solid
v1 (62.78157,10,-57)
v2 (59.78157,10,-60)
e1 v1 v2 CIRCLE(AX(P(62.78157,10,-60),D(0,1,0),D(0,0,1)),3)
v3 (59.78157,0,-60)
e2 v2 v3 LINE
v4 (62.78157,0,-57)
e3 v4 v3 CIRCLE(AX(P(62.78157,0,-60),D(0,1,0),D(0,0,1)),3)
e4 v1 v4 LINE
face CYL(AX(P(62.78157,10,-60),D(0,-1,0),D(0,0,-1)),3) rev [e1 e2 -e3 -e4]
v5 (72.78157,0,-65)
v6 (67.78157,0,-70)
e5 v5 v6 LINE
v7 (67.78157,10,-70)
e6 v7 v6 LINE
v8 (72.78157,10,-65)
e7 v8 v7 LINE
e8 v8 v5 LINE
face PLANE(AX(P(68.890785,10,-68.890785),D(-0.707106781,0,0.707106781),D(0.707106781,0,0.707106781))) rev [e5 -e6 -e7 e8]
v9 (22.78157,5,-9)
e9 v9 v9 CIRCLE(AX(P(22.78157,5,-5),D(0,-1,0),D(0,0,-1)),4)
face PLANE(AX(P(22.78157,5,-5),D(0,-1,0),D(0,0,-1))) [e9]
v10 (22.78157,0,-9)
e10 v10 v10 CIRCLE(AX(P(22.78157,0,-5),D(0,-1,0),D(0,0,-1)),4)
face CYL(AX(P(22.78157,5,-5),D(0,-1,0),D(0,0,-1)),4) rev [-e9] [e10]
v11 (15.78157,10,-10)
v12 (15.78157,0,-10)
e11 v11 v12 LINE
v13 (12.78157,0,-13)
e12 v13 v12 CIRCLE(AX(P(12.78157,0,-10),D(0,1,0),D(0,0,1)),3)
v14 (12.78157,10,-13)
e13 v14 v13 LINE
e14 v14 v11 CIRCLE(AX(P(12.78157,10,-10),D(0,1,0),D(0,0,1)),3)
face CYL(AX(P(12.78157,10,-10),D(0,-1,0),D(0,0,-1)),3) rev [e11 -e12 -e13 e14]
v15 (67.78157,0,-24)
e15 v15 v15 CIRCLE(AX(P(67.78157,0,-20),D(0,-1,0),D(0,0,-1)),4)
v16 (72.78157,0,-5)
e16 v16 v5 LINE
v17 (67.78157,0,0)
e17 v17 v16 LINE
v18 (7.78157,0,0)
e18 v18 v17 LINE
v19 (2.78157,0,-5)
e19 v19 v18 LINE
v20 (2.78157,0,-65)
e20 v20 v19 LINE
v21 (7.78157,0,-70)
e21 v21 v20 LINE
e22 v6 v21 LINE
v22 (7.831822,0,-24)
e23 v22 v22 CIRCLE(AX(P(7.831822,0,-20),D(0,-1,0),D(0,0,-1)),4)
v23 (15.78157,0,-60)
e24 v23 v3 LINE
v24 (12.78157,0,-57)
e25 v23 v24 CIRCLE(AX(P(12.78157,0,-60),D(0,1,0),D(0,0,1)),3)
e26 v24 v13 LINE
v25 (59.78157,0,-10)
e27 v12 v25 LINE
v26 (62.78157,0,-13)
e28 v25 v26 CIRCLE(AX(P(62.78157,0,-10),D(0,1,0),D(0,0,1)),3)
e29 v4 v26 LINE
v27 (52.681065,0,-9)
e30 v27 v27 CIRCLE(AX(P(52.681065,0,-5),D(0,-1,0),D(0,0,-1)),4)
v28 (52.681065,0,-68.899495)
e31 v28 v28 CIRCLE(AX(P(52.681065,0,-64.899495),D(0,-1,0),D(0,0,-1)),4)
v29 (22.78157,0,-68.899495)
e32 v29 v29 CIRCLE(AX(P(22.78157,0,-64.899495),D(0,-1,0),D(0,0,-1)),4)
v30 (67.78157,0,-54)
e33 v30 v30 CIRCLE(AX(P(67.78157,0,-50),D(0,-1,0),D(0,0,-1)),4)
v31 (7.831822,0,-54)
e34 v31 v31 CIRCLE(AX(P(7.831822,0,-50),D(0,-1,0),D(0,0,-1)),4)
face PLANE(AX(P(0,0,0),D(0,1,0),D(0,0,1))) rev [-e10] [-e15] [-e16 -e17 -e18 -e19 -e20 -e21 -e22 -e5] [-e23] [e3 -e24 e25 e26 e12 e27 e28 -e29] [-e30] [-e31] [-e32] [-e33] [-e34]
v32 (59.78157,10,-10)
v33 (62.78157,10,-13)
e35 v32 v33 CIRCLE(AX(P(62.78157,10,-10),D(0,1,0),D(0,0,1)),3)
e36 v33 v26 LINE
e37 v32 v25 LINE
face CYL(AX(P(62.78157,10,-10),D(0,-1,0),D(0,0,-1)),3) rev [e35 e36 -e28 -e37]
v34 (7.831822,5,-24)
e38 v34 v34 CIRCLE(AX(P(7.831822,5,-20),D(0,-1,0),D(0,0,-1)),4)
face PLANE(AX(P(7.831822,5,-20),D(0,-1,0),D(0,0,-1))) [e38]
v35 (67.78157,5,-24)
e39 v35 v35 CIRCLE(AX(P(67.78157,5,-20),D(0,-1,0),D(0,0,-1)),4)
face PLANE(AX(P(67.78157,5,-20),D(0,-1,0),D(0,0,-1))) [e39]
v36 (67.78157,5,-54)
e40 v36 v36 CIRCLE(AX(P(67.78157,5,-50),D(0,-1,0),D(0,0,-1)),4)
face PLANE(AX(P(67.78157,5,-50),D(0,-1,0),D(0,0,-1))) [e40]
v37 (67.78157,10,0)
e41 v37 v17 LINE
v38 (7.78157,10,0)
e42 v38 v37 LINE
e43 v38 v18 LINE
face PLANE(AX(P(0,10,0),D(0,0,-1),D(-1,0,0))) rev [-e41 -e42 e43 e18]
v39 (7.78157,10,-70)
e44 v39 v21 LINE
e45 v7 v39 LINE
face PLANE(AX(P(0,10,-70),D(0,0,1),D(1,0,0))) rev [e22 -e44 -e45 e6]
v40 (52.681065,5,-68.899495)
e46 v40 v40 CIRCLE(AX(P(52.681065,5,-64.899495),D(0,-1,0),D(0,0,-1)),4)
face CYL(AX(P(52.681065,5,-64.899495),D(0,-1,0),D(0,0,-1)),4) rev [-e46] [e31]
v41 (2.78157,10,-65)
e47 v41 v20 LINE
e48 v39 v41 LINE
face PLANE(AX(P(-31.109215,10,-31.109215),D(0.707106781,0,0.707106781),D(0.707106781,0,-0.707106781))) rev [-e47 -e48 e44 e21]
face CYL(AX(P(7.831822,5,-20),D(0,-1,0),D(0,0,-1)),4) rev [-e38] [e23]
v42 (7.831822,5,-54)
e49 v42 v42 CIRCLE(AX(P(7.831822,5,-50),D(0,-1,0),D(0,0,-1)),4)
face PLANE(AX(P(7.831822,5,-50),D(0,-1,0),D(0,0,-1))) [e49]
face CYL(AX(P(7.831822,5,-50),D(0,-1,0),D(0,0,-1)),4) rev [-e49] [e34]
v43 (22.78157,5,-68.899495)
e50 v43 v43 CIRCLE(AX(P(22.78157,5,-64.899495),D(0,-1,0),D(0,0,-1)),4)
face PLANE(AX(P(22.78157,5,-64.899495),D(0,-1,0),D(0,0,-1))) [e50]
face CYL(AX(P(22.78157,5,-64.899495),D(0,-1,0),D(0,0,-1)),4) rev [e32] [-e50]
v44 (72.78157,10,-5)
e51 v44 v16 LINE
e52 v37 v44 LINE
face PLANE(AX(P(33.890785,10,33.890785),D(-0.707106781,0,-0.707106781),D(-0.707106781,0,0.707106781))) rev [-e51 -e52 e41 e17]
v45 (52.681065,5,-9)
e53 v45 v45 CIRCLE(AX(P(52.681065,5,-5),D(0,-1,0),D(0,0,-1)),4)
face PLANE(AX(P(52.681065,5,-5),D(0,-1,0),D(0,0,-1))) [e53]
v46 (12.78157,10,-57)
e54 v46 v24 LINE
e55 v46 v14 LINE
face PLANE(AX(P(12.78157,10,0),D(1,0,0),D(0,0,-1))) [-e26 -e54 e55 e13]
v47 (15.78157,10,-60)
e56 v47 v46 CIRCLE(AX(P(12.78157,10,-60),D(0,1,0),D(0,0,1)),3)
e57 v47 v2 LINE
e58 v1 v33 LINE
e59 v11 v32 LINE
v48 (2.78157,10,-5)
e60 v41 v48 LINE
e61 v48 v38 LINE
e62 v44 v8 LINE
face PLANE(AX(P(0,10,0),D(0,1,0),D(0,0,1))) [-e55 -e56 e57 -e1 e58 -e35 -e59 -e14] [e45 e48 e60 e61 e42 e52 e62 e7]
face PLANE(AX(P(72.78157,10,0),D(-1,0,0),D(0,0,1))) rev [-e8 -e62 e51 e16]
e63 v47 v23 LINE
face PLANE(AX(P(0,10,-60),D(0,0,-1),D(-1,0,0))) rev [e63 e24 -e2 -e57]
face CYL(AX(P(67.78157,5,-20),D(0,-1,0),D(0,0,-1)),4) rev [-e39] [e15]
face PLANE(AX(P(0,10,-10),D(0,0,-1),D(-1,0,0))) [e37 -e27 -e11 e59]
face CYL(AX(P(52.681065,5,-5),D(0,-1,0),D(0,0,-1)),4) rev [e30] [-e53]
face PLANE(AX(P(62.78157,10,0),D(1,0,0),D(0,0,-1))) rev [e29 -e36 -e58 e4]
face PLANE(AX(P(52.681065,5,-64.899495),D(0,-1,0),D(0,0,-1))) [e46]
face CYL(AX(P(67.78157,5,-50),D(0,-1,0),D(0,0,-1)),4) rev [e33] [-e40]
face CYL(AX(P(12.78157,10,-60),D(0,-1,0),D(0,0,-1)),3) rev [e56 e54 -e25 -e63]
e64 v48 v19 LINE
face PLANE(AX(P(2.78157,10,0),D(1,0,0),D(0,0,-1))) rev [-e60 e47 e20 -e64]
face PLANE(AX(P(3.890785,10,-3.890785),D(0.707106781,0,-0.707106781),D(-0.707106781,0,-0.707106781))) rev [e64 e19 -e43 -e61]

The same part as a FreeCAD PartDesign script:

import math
import FreeCAD as App
import Part
import Sketcher
Q = App.Units.Quantity


def add_polygon(sketch, points):
    """Adds a closed chain of lines whose ends are joined by coincident constraints."""
    first, n = sketch.GeometryCount, len(points)
    for a, b in zip(points, points[1:] + points[:1]):
        sketch.addGeometry(Part.LineSegment(App.Vector(*a, 0), App.Vector(*b, 0)), False)
    for i in range(n):
        sketch.addConstraint(Sketcher.Constraint("Coincident", first + i, 2, first + (i + 1) % n, 1))

doc = App.newDocument("Part")
body = doc.addObject("PartDesign::Body", "Body")

# Sketch on XZ plane
sketch1 = doc.addObject("Sketcher::SketchObject", "Sketch")
body.addObject(sketch1)
sketch1.AttachmentSupport = (doc.XZ_Plane, [""])
sketch1.MapMode = "FlatFace"
add_polygon(sketch1, [(2.78157, -65), (2.78157, -5), (7.78157, 0), (67.78157, 0), (72.78157, -5), (72.78157, -65), (67.78157, -70), (7.78157, -70)])  # lines 0-7
sketch1.addGeometry(Part.LineSegment(App.Vector(12.78157, -13, 0), App.Vector(12.78157, -57, 0)), False)  # 8
sketch1.addGeometry(Part.ArcOfCircle(Part.Circle(App.Vector(12.78157, -60, 0), App.Vector(0, 0, 1), 3), math.radians(90), math.radians(360)), False)  # 9
sketch1.addGeometry(Part.LineSegment(App.Vector(15.78157, -60, 0), App.Vector(59.78157, -60, 0)), False)  # 10
sketch1.addGeometry(Part.ArcOfCircle(Part.Circle(App.Vector(62.78157, -60, 0), App.Vector(0, 0, 1), 3), math.radians(180), math.radians(360)), False)  # 11
sketch1.addGeometry(Part.ArcOfCircle(Part.Circle(App.Vector(62.78157, -60, 0), App.Vector(0, 0, 1), 3), math.radians(0), math.radians(90)), False)  # 12
sketch1.addGeometry(Part.LineSegment(App.Vector(62.78157, -57, 0), App.Vector(62.78157, -13, 0)), False)  # 13
sketch1.addGeometry(Part.ArcOfCircle(Part.Circle(App.Vector(62.78157, -10, 0), App.Vector(0, 0, 1), 3), math.radians(-90), math.radians(0)), False)  # 14
sketch1.addGeometry(Part.ArcOfCircle(Part.Circle(App.Vector(62.78157, -10, 0), App.Vector(0, 0, 1), 3), math.radians(0), math.radians(180)), False)  # 15
sketch1.addGeometry(Part.LineSegment(App.Vector(59.78157, -10, 0), App.Vector(15.78157, -10, 0)), False)  # 16
sketch1.addGeometry(Part.ArcOfCircle(Part.Circle(App.Vector(12.78157, -10, 0), App.Vector(0, 0, 1), 3), math.radians(0), math.radians(270)), False)  # 17
sketch1.addConstraint([
    Sketcher.Constraint("Coincident", 8, 2, 9, 1),
    Sketcher.Constraint("Coincident", 9, 2, 10, 1),
    Sketcher.Constraint("Coincident", 10, 2, 11, 1),
    Sketcher.Constraint("Tangent", 11, 2, 12, 1),
    Sketcher.Constraint("Coincident", 12, 2, 13, 1),
    Sketcher.Constraint("Coincident", 13, 2, 14, 1),
    Sketcher.Constraint("Tangent", 14, 2, 15, 1),
    Sketcher.Constraint("Coincident", 15, 2, 16, 1),
    Sketcher.Constraint("Coincident", 16, 2, 17, 1),
    Sketcher.Constraint("Coincident", 17, 2, 8, 1),
    Sketcher.Constraint("Vertical", 0),
    Sketcher.Constraint("Horizontal", 2),
    Sketcher.Constraint("Vertical", 4),
    Sketcher.Constraint("Horizontal", 6),
    Sketcher.Constraint("Vertical", 8),
    Sketcher.Constraint("Horizontal", 10),
    Sketcher.Constraint("Vertical", 13),
    Sketcher.Constraint("Horizontal", 16),
    Sketcher.Constraint("Equal", 9, 11),
    Sketcher.Constraint("Equal", 11, 12),
    Sketcher.Constraint("Equal", 12, 14),
    Sketcher.Constraint("Equal", 14, 15),
    Sketcher.Constraint("Equal", 15, 17),
    Sketcher.Constraint("PointOnObject", 1, 2, -1),
    Sketcher.Constraint("Perpendicular", 1, 3),
    Sketcher.Constraint("Perpendicular", 3, 5),
    Sketcher.Constraint("Perpendicular", 5, 7),
    Sketcher.Constraint("Horizontal", 9, 3, 11, 3),
    Sketcher.Constraint("Horizontal", 15, 3, 17, 3),
    Sketcher.Constraint("Horizontal", 0, 2, 3, 2),
    Sketcher.Constraint("Horizontal", 4, 2, 7, 2),
    Sketcher.Constraint("Horizontal", 12, 3, 9, 2),
    Sketcher.Constraint("Horizontal", 10, 2, 11, 2),
    Sketcher.Constraint("Horizontal", 17, 3, 14, 2),
    Sketcher.Constraint("Horizontal", 14, 2, 15, 2),
    Sketcher.Constraint("Vertical", 12, 3, 14, 3),
    Sketcher.Constraint("Vertical", 9, 3, 17, 3),
    Sketcher.Constraint("Vertical", 2, 2, 5, 2),
    Sketcher.Constraint("Vertical", 1, 2, 6, 2),
    Sketcher.Constraint("Vertical", 17, 3, 8, 2),
    Sketcher.Constraint("Vertical", 15, 3, 12, 2),
    Sketcher.Constraint("Equal", 6, 0),
    Sketcher.Constraint("Equal", 16, 8),
    Sketcher.Constraint("Radius", 9, Q("3 mm")),
    Sketcher.Constraint("DistanceX", 2, 1, 2, 2, Q("60 mm")),
    Sketcher.Constraint("DistanceX", 10, 1, 10, 2, Q("44 mm")),
    Sketcher.Constraint("DistanceY", 9, 3, -1, 1, Q("60 mm")),
    Sketcher.Constraint("DistanceY", 0, 2, -1, 1, Q("5 mm")),
    Sketcher.Constraint("DistanceX", 0, 2, 17, 3, Q("10 mm")),
    Sketcher.Constraint("DistanceX", -1, 1, 9, 3, Q("12.78157 mm")),
])
pad1 = doc.addObject("PartDesign::Pad", "Pad")
body.addObject(pad1)
pad1.Profile = sketch1
pad1.Length = 10
pad1.Reversed = True

# Sketch on XZ plane
sketch2 = doc.addObject("Sketcher::SketchObject", "Sketch001")
body.addObject(sketch2)
sketch2.AttachmentSupport = (doc.XZ_Plane, [""])
sketch2.MapMode = "FlatFace"
sketch2.addGeometry([
    Part.Circle(App.Vector(22.78157, -5, 0), App.Vector(0, 0, 1), 4),  # 0
    Part.Circle(App.Vector(52.681065, -5, 0), App.Vector(0, 0, 1), 4),  # 1
    Part.Circle(App.Vector(67.78157, -20, 0), App.Vector(0, 0, 1), 4),  # 2
    Part.Circle(App.Vector(67.78157, -50, 0), App.Vector(0, 0, 1), 4),  # 3
    Part.Circle(App.Vector(52.681065, -64.899495, 0), App.Vector(0, 0, 1), 4),  # 4
    Part.Circle(App.Vector(22.78157, -64.899495, 0), App.Vector(0, 0, 1), 4),  # 5
    Part.Circle(App.Vector(7.831822, -50, 0), App.Vector(0, 0, 1), 4),  # 6
    Part.Circle(App.Vector(7.831822, -20, 0), App.Vector(0, 0, 1), 4),  # 7
], False)
sketch2.addConstraint([
    Sketcher.Constraint("Equal", 0, 1),
    Sketcher.Constraint("Equal", 1, 2),
    Sketcher.Constraint("Equal", 2, 3),
    Sketcher.Constraint("Equal", 3, 4),
    Sketcher.Constraint("Equal", 4, 5),
    Sketcher.Constraint("Equal", 5, 6),
    Sketcher.Constraint("Equal", 6, 7),
    Sketcher.Constraint("Horizontal", 0, 3, 1, 3),
    Sketcher.Constraint("Horizontal", 4, 3, 5, 3),
    Sketcher.Constraint("Horizontal", 3, 3, 6, 3),
    Sketcher.Constraint("Horizontal", 2, 3, 7, 3),
    Sketcher.Constraint("Vertical", 2, 3, 3, 3),
    Sketcher.Constraint("Vertical", 1, 3, 4, 3),
    Sketcher.Constraint("Vertical", 0, 3, 5, 3),
    Sketcher.Constraint("Vertical", 6, 3, 7, 3),
    Sketcher.Constraint("Diameter", 0, Q("8 mm")),
    Sketcher.Constraint("DistanceY", 0, 3, -1, 1, Q("5 mm")),
    Sketcher.Constraint("DistanceY", 2, 3, -1, 1, Q("20 mm")),
    Sketcher.Constraint("DistanceY", 3, 3, -1, 1, Q("50 mm")),
    Sketcher.Constraint("DistanceX", 0, 3, 2, 3, Q("45 mm")),
    Sketcher.Constraint("DistanceX", -1, 1, 0, 3, Q("22.78157 mm")),
    Sketcher.Constraint("DistanceX", -1, 1, 1, 3, Q("52.681065 mm")),
    Sketcher.Constraint("DistanceY", 4, 3, -1, 1, Q("64.899495 mm")),
    Sketcher.Constraint("DistanceX", -1, 1, 6, 3, Q("7.831822 mm")),
])
pocket1 = doc.addObject("PartDesign::Pocket", "Pocket")
body.addObject(pocket1)
pocket1.Profile = sketch2
pocket1.Length = 5

doc.recompute()
